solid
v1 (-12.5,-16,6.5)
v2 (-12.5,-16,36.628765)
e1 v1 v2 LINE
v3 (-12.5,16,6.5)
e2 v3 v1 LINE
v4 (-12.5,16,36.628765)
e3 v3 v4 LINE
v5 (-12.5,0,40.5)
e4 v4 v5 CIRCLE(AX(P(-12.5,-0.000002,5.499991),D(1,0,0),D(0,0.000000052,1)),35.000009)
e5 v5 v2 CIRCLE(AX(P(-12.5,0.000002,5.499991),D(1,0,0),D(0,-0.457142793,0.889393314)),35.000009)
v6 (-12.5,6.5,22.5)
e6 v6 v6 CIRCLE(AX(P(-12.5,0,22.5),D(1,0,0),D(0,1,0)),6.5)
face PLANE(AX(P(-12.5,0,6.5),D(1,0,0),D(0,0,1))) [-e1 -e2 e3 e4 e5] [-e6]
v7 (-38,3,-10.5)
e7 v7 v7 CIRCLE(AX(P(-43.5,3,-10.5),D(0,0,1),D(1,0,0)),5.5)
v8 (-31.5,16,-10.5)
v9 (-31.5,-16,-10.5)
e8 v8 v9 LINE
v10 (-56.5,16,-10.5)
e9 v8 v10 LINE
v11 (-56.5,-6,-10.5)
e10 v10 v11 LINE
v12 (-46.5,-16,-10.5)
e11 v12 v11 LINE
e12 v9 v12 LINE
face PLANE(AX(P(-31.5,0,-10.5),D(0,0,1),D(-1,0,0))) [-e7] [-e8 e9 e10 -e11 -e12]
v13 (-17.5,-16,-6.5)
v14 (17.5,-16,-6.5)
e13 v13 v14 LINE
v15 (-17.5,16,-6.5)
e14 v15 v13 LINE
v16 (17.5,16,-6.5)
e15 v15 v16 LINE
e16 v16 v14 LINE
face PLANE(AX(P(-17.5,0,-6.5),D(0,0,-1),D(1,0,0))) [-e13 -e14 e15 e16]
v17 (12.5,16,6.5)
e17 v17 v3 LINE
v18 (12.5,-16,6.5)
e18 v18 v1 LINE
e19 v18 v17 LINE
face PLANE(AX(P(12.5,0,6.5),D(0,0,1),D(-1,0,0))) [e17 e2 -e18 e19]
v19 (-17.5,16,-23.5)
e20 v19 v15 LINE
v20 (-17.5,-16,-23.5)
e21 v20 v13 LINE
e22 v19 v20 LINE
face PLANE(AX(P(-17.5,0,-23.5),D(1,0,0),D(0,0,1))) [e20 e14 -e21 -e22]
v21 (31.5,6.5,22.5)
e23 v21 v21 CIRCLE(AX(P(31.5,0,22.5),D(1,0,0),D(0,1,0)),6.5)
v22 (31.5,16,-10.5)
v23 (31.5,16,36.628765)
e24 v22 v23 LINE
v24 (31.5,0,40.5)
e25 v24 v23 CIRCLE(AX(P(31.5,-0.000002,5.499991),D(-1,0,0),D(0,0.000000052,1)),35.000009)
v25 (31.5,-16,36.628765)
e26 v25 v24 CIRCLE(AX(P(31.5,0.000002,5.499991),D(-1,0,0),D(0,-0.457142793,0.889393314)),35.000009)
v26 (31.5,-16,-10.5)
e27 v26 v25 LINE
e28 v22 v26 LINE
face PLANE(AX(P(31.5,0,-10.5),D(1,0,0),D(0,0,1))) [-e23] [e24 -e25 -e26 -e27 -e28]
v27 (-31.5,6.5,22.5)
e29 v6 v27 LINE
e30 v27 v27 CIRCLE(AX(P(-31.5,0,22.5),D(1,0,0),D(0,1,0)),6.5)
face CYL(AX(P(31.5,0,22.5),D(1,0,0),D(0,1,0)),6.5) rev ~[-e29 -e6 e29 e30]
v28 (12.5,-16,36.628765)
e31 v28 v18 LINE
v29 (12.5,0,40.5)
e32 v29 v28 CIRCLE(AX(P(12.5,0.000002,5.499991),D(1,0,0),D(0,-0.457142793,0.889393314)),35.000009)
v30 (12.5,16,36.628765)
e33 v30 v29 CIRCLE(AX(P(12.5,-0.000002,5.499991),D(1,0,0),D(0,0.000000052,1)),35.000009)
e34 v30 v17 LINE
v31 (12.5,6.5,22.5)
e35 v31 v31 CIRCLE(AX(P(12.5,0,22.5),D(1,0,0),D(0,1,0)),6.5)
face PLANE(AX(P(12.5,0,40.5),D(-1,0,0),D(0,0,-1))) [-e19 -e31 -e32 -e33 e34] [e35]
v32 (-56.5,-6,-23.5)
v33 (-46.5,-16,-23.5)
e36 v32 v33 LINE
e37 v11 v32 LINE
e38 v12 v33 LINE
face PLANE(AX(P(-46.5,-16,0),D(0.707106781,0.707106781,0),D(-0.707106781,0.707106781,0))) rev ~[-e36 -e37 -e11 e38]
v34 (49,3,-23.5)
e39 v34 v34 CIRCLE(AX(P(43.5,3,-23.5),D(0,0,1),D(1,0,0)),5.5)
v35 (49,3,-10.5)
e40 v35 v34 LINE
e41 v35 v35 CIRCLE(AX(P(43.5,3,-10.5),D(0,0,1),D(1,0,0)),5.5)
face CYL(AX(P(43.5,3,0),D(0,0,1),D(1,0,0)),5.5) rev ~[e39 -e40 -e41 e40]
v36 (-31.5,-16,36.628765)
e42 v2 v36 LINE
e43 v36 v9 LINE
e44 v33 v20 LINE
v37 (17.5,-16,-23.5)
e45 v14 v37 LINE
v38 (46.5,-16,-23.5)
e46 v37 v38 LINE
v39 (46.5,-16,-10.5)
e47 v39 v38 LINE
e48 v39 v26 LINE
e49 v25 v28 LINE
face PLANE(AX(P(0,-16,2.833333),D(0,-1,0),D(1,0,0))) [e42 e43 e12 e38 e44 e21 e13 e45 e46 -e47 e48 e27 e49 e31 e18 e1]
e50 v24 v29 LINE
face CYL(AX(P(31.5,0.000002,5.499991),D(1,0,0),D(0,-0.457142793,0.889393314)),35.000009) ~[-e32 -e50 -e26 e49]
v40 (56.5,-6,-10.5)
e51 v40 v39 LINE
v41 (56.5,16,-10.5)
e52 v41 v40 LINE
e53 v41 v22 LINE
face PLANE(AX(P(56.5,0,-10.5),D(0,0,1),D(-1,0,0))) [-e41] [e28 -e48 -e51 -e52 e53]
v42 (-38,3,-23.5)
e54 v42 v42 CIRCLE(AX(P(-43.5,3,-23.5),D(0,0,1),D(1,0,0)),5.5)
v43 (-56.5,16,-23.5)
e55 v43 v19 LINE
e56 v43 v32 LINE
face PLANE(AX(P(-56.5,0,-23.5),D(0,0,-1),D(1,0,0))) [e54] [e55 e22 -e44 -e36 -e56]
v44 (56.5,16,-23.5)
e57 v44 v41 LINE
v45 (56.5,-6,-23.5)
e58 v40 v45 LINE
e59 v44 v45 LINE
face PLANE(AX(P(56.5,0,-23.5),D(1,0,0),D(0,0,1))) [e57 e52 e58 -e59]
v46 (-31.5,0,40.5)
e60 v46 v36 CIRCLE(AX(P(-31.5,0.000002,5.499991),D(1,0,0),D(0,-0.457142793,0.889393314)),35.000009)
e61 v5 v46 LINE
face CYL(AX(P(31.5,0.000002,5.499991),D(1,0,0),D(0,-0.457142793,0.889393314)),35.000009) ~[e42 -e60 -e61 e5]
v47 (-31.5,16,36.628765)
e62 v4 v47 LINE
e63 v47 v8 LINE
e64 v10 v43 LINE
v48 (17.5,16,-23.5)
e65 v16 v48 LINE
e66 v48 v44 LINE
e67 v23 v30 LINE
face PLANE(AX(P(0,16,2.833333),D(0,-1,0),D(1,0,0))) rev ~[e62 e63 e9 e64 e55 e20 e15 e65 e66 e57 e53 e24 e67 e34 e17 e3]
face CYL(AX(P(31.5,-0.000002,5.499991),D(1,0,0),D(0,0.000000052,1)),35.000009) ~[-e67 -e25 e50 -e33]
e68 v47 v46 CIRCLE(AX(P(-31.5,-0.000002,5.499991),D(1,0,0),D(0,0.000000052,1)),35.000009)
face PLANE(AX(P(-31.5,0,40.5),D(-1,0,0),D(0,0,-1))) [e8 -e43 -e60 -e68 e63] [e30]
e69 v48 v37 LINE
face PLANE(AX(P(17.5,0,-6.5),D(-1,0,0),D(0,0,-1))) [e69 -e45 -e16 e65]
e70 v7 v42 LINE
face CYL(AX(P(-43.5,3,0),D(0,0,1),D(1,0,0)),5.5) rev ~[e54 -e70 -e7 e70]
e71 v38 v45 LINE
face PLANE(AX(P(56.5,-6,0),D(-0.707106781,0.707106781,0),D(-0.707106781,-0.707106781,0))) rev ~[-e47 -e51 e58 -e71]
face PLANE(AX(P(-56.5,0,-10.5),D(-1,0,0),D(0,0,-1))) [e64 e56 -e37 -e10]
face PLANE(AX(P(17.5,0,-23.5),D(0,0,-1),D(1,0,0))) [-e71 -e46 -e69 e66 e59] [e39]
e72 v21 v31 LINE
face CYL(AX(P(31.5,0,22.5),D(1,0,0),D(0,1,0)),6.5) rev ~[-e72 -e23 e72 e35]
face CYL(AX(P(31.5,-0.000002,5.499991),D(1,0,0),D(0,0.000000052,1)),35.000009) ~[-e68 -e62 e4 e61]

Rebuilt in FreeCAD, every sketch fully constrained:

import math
import FreeCAD as App
import Part
import Sketcher

doc = App.newDocument("Part")
body = doc.addObject("PartDesign::Body", "Body")

# Sketch on XZ plane
sketch1 = body.newObject("Sketcher::SketchObject", "Sketch")
sketch1.AttachmentSupport = (doc.getObject("XZ_Plane"), [""])
sketch1.MapMode = "FlatFace"
sketch1.addGeometry([
    Part.LineSegment(App.Vector(12, 6, 0), App.Vector(-12, 6, 0)),  # 0
    Part.LineSegment(App.Vector(-12, 6, 0), App.Vector(-12, 40, 0)),  # 1
    Part.LineSegment(App.Vector(-12, 40, 0), App.Vector(-32, 40, 0)),  # 2
    Part.LineSegment(App.Vector(-32, 40, 0), App.Vector(-32, -10, 0)),  # 3
    Part.LineSegment(App.Vector(-32, -10, 0), App.Vector(-56, -10, 0)),  # 4
    Part.LineSegment(App.Vector(-56, -10, 0), App.Vector(-56, -24, 0)),  # 5
    Part.LineSegment(App.Vector(-56, -24, 0), App.Vector(-18, -24, 0)),  # 6
    Part.LineSegment(App.Vector(-18, -24, 0), App.Vector(-18, -6, 0)),  # 7
    Part.LineSegment(App.Vector(-18, -6, 0), App.Vector(18, -6, 0)),  # 8
    Part.LineSegment(App.Vector(18, -6, 0), App.Vector(18, -24, 0)),  # 9
    Part.LineSegment(App.Vector(18, -24, 0), App.Vector(56, -24, 0)),  # 10
    Part.LineSegment(App.Vector(56, -24, 0), App.Vector(56, -10, 0)),  # 11
    Part.LineSegment(App.Vector(56, -10, 0), App.Vector(32, -10, 0)),  # 12
    Part.LineSegment(App.Vector(32, -10, 0), App.Vector(32, 40, 0)),  # 13
    Part.LineSegment(App.Vector(32, 40, 0), App.Vector(12, 40, 0)),  # 14
    Part.LineSegment(App.Vector(12, 40, 0), App.Vector(12, 6, 0)),  # 15
], False)
sketch1.addConstraint([
    Sketcher.Constraint("Coincident", 0, 2, 1, 1),
    Sketcher.Constraint("Coincident", 1, 2, 2, 1),
    Sketcher.Constraint("Coincident", 2, 2, 3, 1),
    Sketcher.Constraint("Coincident", 3, 2, 4, 1),
    Sketcher.Constraint("Coincident", 4, 2, 5, 1),
    Sketcher.Constraint("Coincident", 5, 2, 6, 1),
    Sketcher.Constraint("Coincident", 6, 2, 7, 1),
    Sketcher.Constraint("Coincident", 7, 2, 8, 1),
    Sketcher.Constraint("Coincident", 8, 2, 9, 1),
    Sketcher.Constraint("Coincident", 9, 2, 10, 1),
    Sketcher.Constraint("Coincident", 10, 2, 11, 1),
    Sketcher.Constraint("Coincident", 11, 2, 12, 1),
    Sketcher.Constraint("Coincident", 12, 2, 13, 1),
    Sketcher.Constraint("Coincident", 13, 2, 14, 1),
    Sketcher.Constraint("Coincident", 14, 2, 15, 1),
    Sketcher.Constraint("Coincident", 15, 2, 0, 1),
    Sketcher.Constraint("Horizontal", 0),
    Sketcher.Constraint("Vertical", 1),
    Sketcher.Constraint("Horizontal", 2),
    Sketcher.Constraint("Vertical", 3),
    Sketcher.Constraint("Horizontal", 4),
    Sketcher.Constraint("Vertical", 5),
    Sketcher.Constraint("Horizontal", 6),
    Sketcher.Constraint("Vertical", 7),
    Sketcher.Constraint("Horizontal", 8),
    Sketcher.Constraint("Vertical", 9),
    Sketcher.Constraint("Horizontal", 10),
    Sketcher.Constraint("Vertical", 11),
    Sketcher.Constraint("Horizontal", 12),
    Sketcher.Constraint("Vertical", 13),
    Sketcher.Constraint("Horizontal", 14),
    Sketcher.Constraint("Vertical", 15),
    Sketcher.Constraint("Symmetric", 6, 2, 9, 2, -2),
    Sketcher.Constraint("Symmetric", 4, 2, 11, 2, -2),
    Sketcher.Constraint("Symmetric", 2, 2, 13, 2, -2),
    Sketcher.Constraint("Equal", 0, 4),
    Sketcher.Constraint("Equal", 2, 14),
    Sketcher.Constraint("DistanceX", 0, 2, 0, 1, 25.0),
    Sketcher.Constraint("DistanceX", 2, 2, 2, 1, 19.0),
    Sketcher.Constraint("DistanceX", 6, 1, 6, 2, 39.0),
    Sketcher.Constraint("DistanceY", 1, 1, 1, 2, 34.0),
    Sketcher.Constraint("DistanceY", 3, 2, 3, 1, 51.0),
    Sketcher.Constraint("DistanceY", 5, 2, 5, 1, 13.0),
    Sketcher.Constraint("DistanceY", 7, 1, 7, 2, 17.0),
    Sketcher.Constraint("DistanceY", -1, 1, 0, 2, 6.5),
])
pad1 = body.newObject("PartDesign::Pad", "Pad")
pad1.Profile = sketch1
pad1.Length = 32
pad1.Midplane = True

# Sketch on XY plane
sketch2 = body.newObject("Sketcher::SketchObject", "Sketch001")
sketch2.AttachmentSupport = (doc.getObject("XY_Plane"), [""])
sketch2.MapMode = "FlatFace"
sketch2.addGeometry([
    Part.LineSegment(App.Vector(-46, -16, 0), App.Vector(-56, -6, 0)),  # 0
    Part.LineSegment(App.Vector(-56, -6, 0), App.Vector(-56, -16, 0)),  # 1
    Part.LineSegment(App.Vector(-56, -16, 0), App.Vector(-46, -16, 0)),  # 2
    Part.LineSegment(App.Vector(56, -16, 0), App.Vector(56, -6, 0)),  # 3
    Part.LineSegment(App.Vector(56, -6, 0), App.Vector(46, -16, 0)),  # 4
    Part.LineSegment(App.Vector(46, -16, 0), App.Vector(56, -16, 0)),  # 5
], False)
sketch2.addConstraint([
    Sketcher.Constraint("Coincident", 0, 2, 1, 1),
    Sketcher.Constraint("Coincident", 1, 2, 2, 1),
    Sketcher.Constraint("Coincident", 2, 2, 0, 1),
    Sketcher.Constraint("Coincident", 3, 2, 4, 1),
    Sketcher.Constraint("Coincident", 4, 2, 5, 1),
    Sketcher.Constraint("Coincident", 5, 2, 3, 1),
    Sketcher.Constraint("Vertical", 1),
    Sketcher.Constraint("Horizontal", 2),
    Sketcher.Constraint("Vertical", 3),
    Sketcher.Constraint("Horizontal", 5),
    Sketcher.Constraint("Symmetric", 0, 2, 3, 2, -2),
    Sketcher.Constraint("Symmetric", 2, 2, 4, 2, -2),
    Sketcher.Constraint("Perpendicular", 0, 4),
    Sketcher.Constraint("DistanceX", 2, 1, 2, 2, 10.0),
    Sketcher.Constraint("DistanceY", 0, 2, -1, 1, 6.0),
    Sketcher.Constraint("DistanceX", 2, 2, 3, 2, 103.0),
])
pocket1 = body.newObject("PartDesign::Pocket", "Pocket")
pocket1.Profile = sketch2
pocket1.Type = "ThroughAll"

# Sketch on XY plane
sketch3 = body.newObject("Sketcher::SketchObject", "Sketch002")
sketch3.AttachmentSupport = (doc.getObject("XY_Plane"), [""])
sketch3.MapMode = "FlatFace"
sketch3.addGeometry([
    Part.Circle(App.Vector(44, 3, 0), App.Vector(0, 0, 1), 6),
    Part.Circle(App.Vector(-44, 3, 0), App.Vector(0, 0, 1), 6),
], False)
sketch3.addConstraint([
    Sketcher.Constraint("Equal", 0, 1),
    Sketcher.Constraint("Symmetric", 0, 3, 1, 3, -2),
    Sketcher.Constraint("Diameter", 0, 11.0),
    Sketcher.Constraint("DistanceY", -1, 1, 0, 3, 3.0),
    Sketcher.Constraint("DistanceX", 1, 3, 0, 3, 87.0),
])
pocket2 = body.newObject("PartDesign::Pocket", "Pocket001")
pocket2.Profile = sketch3
pocket2.Type = "ThroughAll"

# Sketch on YZ plane
sketch4 = body.newObject("Sketcher::SketchObject", "Sketch003")
sketch4.AttachmentSupport = (doc.getObject("YZ_Plane"), [""])
sketch4.MapMode = "FlatFace"
sketch4.AttachmentOffset = App.Placement(App.Vector(0, 0, 31.5), App.Rotation())
sketch4.addGeometry([
    Part.ArcOfCircle(Part.Circle(App.Vector(0, 5.5, 0), App.Vector(0, 0, 1), 35), math.radians(90), math.radians(117)),  # 0
    Part.LineSegment(App.Vector(0, 40.5, 0), App.Vector(-16, 40.5, 0)),  # 1
    Part.LineSegment(App.Vector(-16, 40.5, 0), App.Vector(-16, 36.6, 0)),  # 2
    Part.ArcOfCircle(Part.Circle(App.Vector(0, 5.5, 0), App.Vector(0, 0, 1), 35), math.radians(63), math.radians(90)),  # 3
    Part.LineSegment(App.Vector(16, 36.6, 0), App.Vector(16, 40.5, 0)),  # 4
    Part.LineSegment(App.Vector(16, 40.5, 0), App.Vector(0, 40.5, 0)),  # 5
], False)
sketch4.addConstraint([
    Sketcher.Constraint("Tangent", 0, 1, 1, 1),
    Sketcher.Constraint("Coincident", 1, 2, 2, 1),
    Sketcher.Constraint("Coincident", 2, 2, 0, 2),
    Sketcher.Constraint("Coincident", 3, 1, 4, 1),
    Sketcher.Constraint("Coincident", 4, 2, 5, 1),
    Sketcher.Constraint("Tangent", 5, 2, 3, 2),
    Sketcher.Constraint("Horizontal", 1),
    Sketcher.Constraint("Vertical", 2),
    Sketcher.Constraint("Vertical", 4),
    Sketcher.Constraint("Horizontal", 5),
    Sketcher.Constraint("Coincident", 3, 3, 0, 3),
    Sketcher.Constraint("Equal", 0, 3),
    Sketcher.Constraint("Symmetric", 2, 2, 3, 1, -2),
    Sketcher.Constraint("DistanceX", 1, 2, 1, 1, 16.0),
    Sketcher.Constraint("DistanceY", -1, 1, 0, 1, 40.5),
    Sketcher.Constraint("Radius", 0, 35.000009),
])
pocket3 = body.newObject("PartDesign::Pocket", "Pocket002")
pocket3.Profile = sketch4
pocket3.Type = "ThroughAll"

# Sketch on YZ plane
sketch5 = body.newObject("Sketcher::SketchObject", "Sketch004")
sketch5.AttachmentSupport = (doc.getObject("YZ_Plane"), [""])
sketch5.MapMode = "FlatFace"
sketch5.AttachmentOffset = App.Placement(App.Vector(0, 0, 31.5), App.Rotation())
sketch5.addGeometry(Part.Circle(App.Vector(0, 22, 0), App.Vector(0, 0, 1), 6), False)
sketch5.addConstraint([
    Sketcher.Constraint("PointOnObject", 0, 3, -2),
    Sketcher.Constraint("Diameter", 0, 13.0),
    Sketcher.Constraint("DistanceY", -1, 1, 0, 3, 22.5),
])
pocket4 = body.newObject("PartDesign::Pocket", "Pocket003")
pocket4.Profile = sketch5
pocket4.Type = "ThroughAll"

doc.recompute()
